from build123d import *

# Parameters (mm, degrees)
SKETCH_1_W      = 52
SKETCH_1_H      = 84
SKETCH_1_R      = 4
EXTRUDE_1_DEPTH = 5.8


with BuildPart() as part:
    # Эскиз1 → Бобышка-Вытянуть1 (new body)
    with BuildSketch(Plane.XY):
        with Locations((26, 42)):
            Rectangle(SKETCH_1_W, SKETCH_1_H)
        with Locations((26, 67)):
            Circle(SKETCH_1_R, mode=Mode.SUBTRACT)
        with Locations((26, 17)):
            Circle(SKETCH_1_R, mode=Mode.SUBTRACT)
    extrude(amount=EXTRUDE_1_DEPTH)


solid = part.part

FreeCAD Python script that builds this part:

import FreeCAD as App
import Part
import Sketcher

doc = App.newDocument("Part")
body = doc.addObject("PartDesign::Body", "Body")

# Sketch on XY plane
sketch1 = body.newObject("Sketcher::SketchObject", "Sketch")
sketch1.AttachmentSupport = (doc.getObject("XY_Plane"), [""])
sketch1.MapMode = "FlatFace"
sketch1.addGeometry([
    Part.LineSegment(App.Vector(0, 84, 0), App.Vector(0, 0, 0)),  # 0
    Part.LineSegment(App.Vector(0, 0, 0), App.Vector(52, 0, 0)),  # 1
    Part.LineSegment(App.Vector(52, 0, 0), App.Vector(52, 84, 0)),  # 2
    Part.LineSegment(App.Vector(52, 84, 0), App.Vector(0, 84, 0)),  # 3
    Part.Circle(App.Vector(26, 17, 0), App.Vector(0, 0, 1), 4),  # 4
    Part.Circle(App.Vector(26, 67, 0), App.Vector(0, 0, 1), 4),  # 5
], False)
sketch1.addConstraint([
    Sketcher.Constraint("Coincident", 0, 2, 1, 1),
    Sketcher.Constraint("Coincident", 1, 2, 2, 1),
    Sketcher.Constraint("Coincident", 2, 2, 3, 1),
    Sketcher.Constraint("Coincident", 3, 2, 0, 1),
    Sketcher.Constraint("Vertical", 0),
    Sketcher.Constraint("Horizontal", 1),
    Sketcher.Constraint("Vertical", 2),
    Sketcher.Constraint("Horizontal", 3),
    Sketcher.Constraint("Coincident", 0, 2, -1, 1),
    Sketcher.Constraint("Equal", 4, 5),
    Sketcher.Constraint("Vertical", 4, 3, 5, 3),
    Sketcher.Constraint("Diameter", 4, 8.0),
    Sketcher.Constraint("DistanceX", 1, 1, 1, 2, 52.0),
    Sketcher.Constraint("DistanceY", 0, 2, 0, 1, 84.0),
    Sketcher.Constraint("DistanceX", -1, 1, 4, 3, 26.0),
    Sketcher.Constraint("DistanceY", -1, 1, 4, 3, 17.0),
    Sketcher.Constraint("DistanceY", -1, 1, 5, 3, 67.0),
])
pad1 = body.newObject("PartDesign::Pad", "Pad")
pad1.Profile = sketch1
pad1.Length = 5.8

doc.recompute()
